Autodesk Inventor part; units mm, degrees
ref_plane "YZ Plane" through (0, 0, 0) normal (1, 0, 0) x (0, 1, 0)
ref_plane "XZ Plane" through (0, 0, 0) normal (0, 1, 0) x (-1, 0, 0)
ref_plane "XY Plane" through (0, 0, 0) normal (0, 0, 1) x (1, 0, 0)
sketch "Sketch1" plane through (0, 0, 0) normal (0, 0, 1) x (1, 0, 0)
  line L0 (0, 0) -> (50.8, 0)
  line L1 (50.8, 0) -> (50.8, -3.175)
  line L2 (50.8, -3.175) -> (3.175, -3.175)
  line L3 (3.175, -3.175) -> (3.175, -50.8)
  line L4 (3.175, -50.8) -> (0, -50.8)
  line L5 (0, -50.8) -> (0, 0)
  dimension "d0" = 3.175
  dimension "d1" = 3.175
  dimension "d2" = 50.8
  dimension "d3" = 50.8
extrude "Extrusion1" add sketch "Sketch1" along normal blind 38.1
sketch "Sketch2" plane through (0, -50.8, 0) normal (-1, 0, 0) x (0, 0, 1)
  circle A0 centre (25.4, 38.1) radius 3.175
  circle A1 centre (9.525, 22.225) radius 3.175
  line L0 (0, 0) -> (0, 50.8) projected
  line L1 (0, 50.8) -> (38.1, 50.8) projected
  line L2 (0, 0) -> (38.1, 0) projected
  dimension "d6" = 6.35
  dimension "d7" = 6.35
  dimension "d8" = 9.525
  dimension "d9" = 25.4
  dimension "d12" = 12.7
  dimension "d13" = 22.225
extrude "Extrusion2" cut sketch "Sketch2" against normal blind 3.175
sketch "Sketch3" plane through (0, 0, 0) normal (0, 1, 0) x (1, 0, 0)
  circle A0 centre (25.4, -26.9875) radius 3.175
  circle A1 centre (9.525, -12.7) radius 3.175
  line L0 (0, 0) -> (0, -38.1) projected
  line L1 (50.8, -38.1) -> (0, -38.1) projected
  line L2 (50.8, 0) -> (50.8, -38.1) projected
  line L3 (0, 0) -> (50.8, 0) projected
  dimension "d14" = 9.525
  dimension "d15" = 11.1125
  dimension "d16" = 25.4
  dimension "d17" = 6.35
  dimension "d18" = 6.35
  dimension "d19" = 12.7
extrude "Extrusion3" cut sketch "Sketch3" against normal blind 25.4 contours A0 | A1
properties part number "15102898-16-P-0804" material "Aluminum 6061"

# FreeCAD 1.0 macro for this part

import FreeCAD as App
import Part
import Sketcher
from FreeCAD import Vector
Q = App.Units.Quantity


def add_polygon(sketch, points):
    """Adds a closed chain of lines whose ends are joined by coincident constraints."""
    first, n = sketch.GeometryCount, len(points)
    for a, b in zip(points, points[1:] + points[:1]):
        sketch.addGeometry(Part.LineSegment(App.Vector(*a, 0), App.Vector(*b, 0)), False)
    for i in range(n):
        sketch.addConstraint(Sketcher.Constraint("Coincident", first + i, 2, first + (i + 1) % n, 1))

doc = App.newDocument("Part")
body = doc.addObject("PartDesign::Body", "Body")

# Sketch on XY plane
sketch1 = doc.addObject("Sketcher::SketchObject", "Sketch")
body.addObject(sketch1)
sketch1.AttachmentSupport = (doc.XY_Plane, [""])
sketch1.MapMode = "FlatFace"
add_polygon(sketch1, [(50.8, 0), (0, 0), (0, -50.8), (3.2, -50.8), (3.2, -3.2), (50.8, -3.2)])  # lines 0-5
sketch1.addConstraint([
    Sketcher.Constraint("Horizontal", 0),
    Sketcher.Constraint("Vertical", 1),
    Sketcher.Constraint("Horizontal", 2),
    Sketcher.Constraint("Vertical", 3),
    Sketcher.Constraint("Horizontal", 4),
    Sketcher.Constraint("Vertical", 5),
    Sketcher.Constraint("Coincident", 0, 2, -1, 1),
    Sketcher.Constraint("Equal", 0, 1),
    Sketcher.Constraint("Equal", 4, 3),
    Sketcher.Constraint("DistanceX", 0, 2, 0, 1, Q("2 in")),
    Sketcher.Constraint("DistanceX", 2, 1, 2, 2, Q("0.125 in")),
])
pad1 = doc.addObject("PartDesign::Pad", "Pad")
body.addObject(pad1)
pad1.Profile = sketch1
pad1.Length = Q("1.5 in")

# Sketch on YZ plane
sketch2 = doc.addObject("Sketcher::SketchObject", "Sketch001")
body.addObject(sketch2)
sketch2.AttachmentSupport = (doc.YZ_Plane, [""])
sketch2.MapMode = "FlatFace"
sketch2.addGeometry([
    Part.Circle(Vector(-12.7, 25.4, 0), Vector(0, 0, 1), 3.2),
    Part.Circle(Vector(-28.6, 9.5, 0), Vector(0, 0, 1), 3.2),
], False)
sketch2.addConstraint([
    Sketcher.Constraint("Equal", 0, 1),
    Sketcher.Constraint("Diameter", 0, Q("0.25 in")),
    Sketcher.Constraint("DistanceY", -1, 1, 0, 3, Q("1 in")),
    Sketcher.Constraint("DistanceX", 0, 3, -1, 1, Q("0.5 in")),
    Sketcher.Constraint("DistanceY", -1, 1, 1, 3, Q("0.375 in")),
    Sketcher.Constraint("DistanceX", 1, 3, -1, 1, Q("1.125 in")),
])
pocket1 = doc.addObject("PartDesign::Pocket", "Pocket")
body.addObject(pocket1)
pocket1.Profile = sketch2
pocket1.Length = Q("0.125 in")
pocket1.Reversed = True

# Sketch on XZ plane
sketch3 = doc.addObject("Sketcher::SketchObject", "Sketch002")
body.addObject(sketch3)
sketch3.AttachmentSupport = (doc.XZ_Plane, [""])
sketch3.MapMode = "FlatFace"
sketch3.addGeometry([
    Part.Circle(Vector(25.4, 27, 0), Vector(0, 0, 1), 3.2),
    Part.Circle(Vector(9.5, 12.7, 0), Vector(0, 0, 1), 3.2),
], False)
sketch3.addConstraint([
    Sketcher.Constraint("Equal", 0, 1),
    Sketcher.Constraint("Diameter", 0, Q("0.25 in")),
    Sketcher.Constraint("DistanceX", -1, 1, 0, 3, Q("1 in")),
    Sketcher.Constraint("DistanceY", -1, 1, 1, 3, Q("0.5 in")),
    Sketcher.Constraint("DistanceX", -1, 1, 1, 3, Q("0.375 in")),
    Sketcher.Constraint("DistanceY", -1, 1, 0, 3, Q("1.0625 in")),
])
pocket2 = doc.addObject("PartDesign::Pocket", "Pocket001")
body.addObject(pocket2)
pocket2.Profile = sketch3
pocket2.Length = Q("1 in")
pocket2.Reversed = True

doc.recompute()
